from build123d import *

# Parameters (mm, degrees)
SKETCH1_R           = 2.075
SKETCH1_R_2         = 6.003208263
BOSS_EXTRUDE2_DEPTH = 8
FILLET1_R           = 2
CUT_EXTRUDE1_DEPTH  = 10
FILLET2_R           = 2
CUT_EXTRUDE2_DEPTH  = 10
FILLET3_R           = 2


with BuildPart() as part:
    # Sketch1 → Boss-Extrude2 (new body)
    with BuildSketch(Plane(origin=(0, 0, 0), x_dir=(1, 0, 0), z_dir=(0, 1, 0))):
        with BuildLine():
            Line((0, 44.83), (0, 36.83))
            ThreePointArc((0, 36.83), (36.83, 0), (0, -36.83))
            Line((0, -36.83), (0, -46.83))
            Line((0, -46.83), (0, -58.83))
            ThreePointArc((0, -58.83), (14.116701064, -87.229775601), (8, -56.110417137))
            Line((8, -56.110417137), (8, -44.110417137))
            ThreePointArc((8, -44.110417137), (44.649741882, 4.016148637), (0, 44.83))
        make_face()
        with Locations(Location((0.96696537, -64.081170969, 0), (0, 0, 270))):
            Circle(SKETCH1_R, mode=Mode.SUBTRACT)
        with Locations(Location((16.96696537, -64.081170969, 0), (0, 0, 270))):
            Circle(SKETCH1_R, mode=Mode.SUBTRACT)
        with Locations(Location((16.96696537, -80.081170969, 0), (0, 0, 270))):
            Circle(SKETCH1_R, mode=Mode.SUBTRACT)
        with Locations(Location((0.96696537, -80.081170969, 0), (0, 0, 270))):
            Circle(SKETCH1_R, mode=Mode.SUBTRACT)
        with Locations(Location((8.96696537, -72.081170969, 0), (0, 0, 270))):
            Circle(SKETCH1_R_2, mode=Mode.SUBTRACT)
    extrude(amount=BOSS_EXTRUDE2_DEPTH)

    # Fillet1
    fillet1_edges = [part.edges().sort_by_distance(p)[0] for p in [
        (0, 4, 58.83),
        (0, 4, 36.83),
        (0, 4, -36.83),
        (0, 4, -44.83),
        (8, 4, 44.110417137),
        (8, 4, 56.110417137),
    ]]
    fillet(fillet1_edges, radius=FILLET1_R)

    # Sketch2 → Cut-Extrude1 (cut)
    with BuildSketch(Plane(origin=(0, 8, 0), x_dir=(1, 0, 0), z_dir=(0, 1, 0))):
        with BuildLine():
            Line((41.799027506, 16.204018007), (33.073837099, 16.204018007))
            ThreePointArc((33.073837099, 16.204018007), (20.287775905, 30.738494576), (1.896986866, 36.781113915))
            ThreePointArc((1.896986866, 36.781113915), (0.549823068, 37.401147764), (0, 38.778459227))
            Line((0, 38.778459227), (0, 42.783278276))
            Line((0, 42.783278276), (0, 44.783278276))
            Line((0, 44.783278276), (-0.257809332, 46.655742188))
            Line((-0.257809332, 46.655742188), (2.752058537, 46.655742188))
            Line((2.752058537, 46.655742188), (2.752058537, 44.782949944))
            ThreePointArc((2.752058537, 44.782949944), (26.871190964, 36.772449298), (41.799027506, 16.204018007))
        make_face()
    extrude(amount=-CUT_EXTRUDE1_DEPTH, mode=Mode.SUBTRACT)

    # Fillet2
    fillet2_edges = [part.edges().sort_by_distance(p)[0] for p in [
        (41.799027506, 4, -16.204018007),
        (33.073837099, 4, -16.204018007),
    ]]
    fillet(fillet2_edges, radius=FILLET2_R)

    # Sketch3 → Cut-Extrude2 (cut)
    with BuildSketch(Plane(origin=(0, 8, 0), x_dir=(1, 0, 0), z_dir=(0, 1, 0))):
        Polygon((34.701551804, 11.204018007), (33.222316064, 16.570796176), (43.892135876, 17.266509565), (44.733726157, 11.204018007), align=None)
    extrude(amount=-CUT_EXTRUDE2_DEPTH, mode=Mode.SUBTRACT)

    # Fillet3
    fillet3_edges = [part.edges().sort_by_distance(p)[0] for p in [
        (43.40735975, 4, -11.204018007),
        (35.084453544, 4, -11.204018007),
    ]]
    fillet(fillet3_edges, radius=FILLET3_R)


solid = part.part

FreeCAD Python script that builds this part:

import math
import FreeCAD as App
import Part
import Sketcher

V = App.Vector


def edges_at(feature, points):
    """Names of the edges that pass closest to the given points."""
    edges = feature.Shape.Edges
    near = lambda p: min(range(len(edges)), key=lambda i: edges[i].distToShape(Part.Vertex(*p))[0])
    return sorted({f"Edge{near(p) + 1}" for p in points})


def add_polygon(sketch, points):
    """Adds a closed chain of lines whose ends are joined by coincident constraints."""
    first, n = sketch.GeometryCount, len(points)
    for a, b in zip(points, points[1:] + points[:1]):
        sketch.addGeometry(Part.LineSegment(App.Vector(*a, 0), App.Vector(*b, 0)), False)
    for i in range(n):
        sketch.addConstraint(Sketcher.Constraint("Coincident", first + i, 2, first + (i + 1) % n, 1))

doc = App.newDocument("Part")
body = doc.addObject("PartDesign::Body", "Body")

sketch1 = doc.addObject("Sketcher::SketchObject", "Sketch")
body.addObject(sketch1)
sketch1.AttachmentSupport = (doc.XZ_Plane, [""])
sketch1.MapMode = "FlatFace"
sketch1.addGeometry(Part.LineSegment(V(0, -44.8, 0), V(0, -36.8, 0)), False)
sketch1.addGeometry(Part.ArcOfCircle(Part.Circle(V(0, 0, 0), V(0, 0, 1), 36.8), math.radians(-90), math.radians(90)), False)
sketch1.addGeometry(Part.LineSegment(V(0, 36.8, 0), V(0, 58.8, 0)), False)
sketch1.addGeometry(Part.ArcOfCircle(Part.Circle(V(9, 72.1, 0), V(0, 0, 1), 16), math.radians(-93), math.radians(236)), False)
sketch1.addGeometry(Part.LineSegment(V(8, 56.1, 0), V(8, 44.1, 0)), False)
sketch1.addGeometry(Part.ArcOfCircle(Part.Circle(V(0, 0, 0), V(0, 0, 1), 44.8), math.radians(-90), math.radians(80)), False)
sketch1.addGeometry(Part.Circle(V(1, 80.1, 0), V(0, 0, 1), 2.1), False)
sketch1.addGeometry(Part.Circle(V(9, 72.1, 0), V(0, 0, 1), 6), False)
sketch1.addGeometry(Part.Circle(V(17, 80.1, 0), V(0, 0, 1), 2.1), False)
sketch1.addGeometry(Part.Circle(V(1, 64.1, 0), V(0, 0, 1), 2.1), False)
sketch1.addGeometry(Part.Circle(V(17, 64.1, 0), V(0, 0, 1), 2.1), False)
sketch1.addConstraint(Sketcher.Constraint("Coincident", 0, 2, 1, 1))
sketch1.addConstraint(Sketcher.Constraint("Coincident", 1, 2, 2, 1))
sketch1.addConstraint(Sketcher.Constraint("Coincident", 2, 2, 3, 2))
sketch1.addConstraint(Sketcher.Constraint("Coincident", 3, 1, 4, 1))
sketch1.addConstraint(Sketcher.Constraint("Coincident", 4, 2, 5, 2))
sketch1.addConstraint(Sketcher.Constraint("Coincident", 5, 1, 0, 1))
sketch1.addConstraint(Sketcher.Constraint("Vertical", 0))
sketch1.addConstraint(Sketcher.Constraint("Vertical", 2))
sketch1.addConstraint(Sketcher.Constraint("Vertical", 4))
sketch1.addConstraint(Sketcher.Constraint("Coincident", 1, 3, -1, 1))
sketch1.addConstraint(Sketcher.Constraint("Coincident", 5, 3, -1, 1))
sketch1.addConstraint(Sketcher.Constraint("Coincident", 7, 3, 3, 3))
sketch1.addConstraint(Sketcher.Constraint("Equal", 6, 8))
sketch1.addConstraint(Sketcher.Constraint("Equal", 8, 9))
sketch1.addConstraint(Sketcher.Constraint("Equal", 9, 10))
sketch1.addConstraint(Sketcher.Constraint("PointOnObject", 0, 2, -2))
sketch1.addConstraint(Sketcher.Constraint("PointOnObject", 1, 2, -2))
sketch1.addConstraint(Sketcher.Constraint("Horizontal", 6, 3, 8, 3))
sketch1.addConstraint(Sketcher.Constraint("Horizontal", 9, 3, 10, 3))
sketch1.addConstraint(Sketcher.Constraint("Vertical", 6, 3, 9, 3))
sketch1.addConstraint(Sketcher.Constraint("Vertical", 8, 3, 10, 3))
sketch1.addConstraint(Sketcher.Constraint("Radius", 3, 16.0))
sketch1.addConstraint(Sketcher.Constraint("Diameter", 6, 4.15))
sketch1.addConstraint(Sketcher.Constraint("DistanceY", 0, 1, 0, 2, 8.0))
sketch1.addConstraint(Sketcher.Constraint("DistanceY", 2, 1, 2, 2, 22.0))
sketch1.addConstraint(Sketcher.Constraint("DistanceY", 4, 2, 4, 1, 12.0))
sketch1.addConstraint(Sketcher.Constraint("Radius", 1, 36.83))
sketch1.addConstraint(Sketcher.Constraint("DistanceX", -1, 1, 3, 1, 8.0))
sketch1.addConstraint(Sketcher.Constraint("DistanceX", 6, 3, 3, 3, 8.0))
sketch1.addConstraint(Sketcher.Constraint("DistanceY", 3, 3, 6, 3, 8.0))
sketch1.addConstraint(Sketcher.Constraint("DistanceX", 3, 3, 8, 3, 8.0))
sketch1.addConstraint(Sketcher.Constraint("DistanceY", 9, 3, 3, 3, 8.0))
sketch1.addConstraint(Sketcher.Constraint("Diameter", 7, 12.006417))
pad1 = doc.addObject("PartDesign::Pad", "Pad")
body.addObject(pad1)
pad1.Profile = sketch1
pad1.Length = 8
pad1.Reversed = True
doc.recompute()

fillet = doc.addObject("PartDesign::Fillet", "Fillet")
body.addObject(fillet)
fillet.Base = (pad1, edges_at(pad1, [
    (0, 4, 58.83),
    (0, 4, 36.83),
    (0, 4, -36.83),
    (0, 4, -44.83),
    (8, 4, 44.11),
    (8, 4, 56.11),
]))
fillet.Radius = 2

sketch2 = doc.addObject("Sketcher::SketchObject", "Sketch001")
body.addObject(sketch2)
sketch2.AttachmentSupport = (doc.XZ_Plane, [""])
sketch2.MapMode = "FlatFace"
sketch2.AttachmentOffset = App.Placement(V(0, 0, -8), App.Rotation())
sketch2.addGeometry(Part.LineSegment(V(33.1, -16.2, 0), V(41.8, -16.2, 0)), False)
sketch2.addGeometry(Part.ArcOfCircle(Part.Circle(V(2.4, -3.3, 0), V(0, 0, 1), 41.5), math.radians(-89), math.radians(-18)), False)
sketch2.addGeometry(Part.LineSegment(V(2.8, -44.8, 0), V(2.8, -46.7, 0)), False)
sketch2.addGeometry(Part.LineSegment(V(2.8, -46.7, 0), V(-0.3, -46.7, 0)), False)
sketch2.addGeometry(Part.LineSegment(V(-0.3, -46.7, 0), V(0, -44.8, 0)), False)
sketch2.addGeometry(Part.LineSegment(V(0, -44.8, 0), V(0, -38.8, 0)), False)
sketch2.addGeometry(Part.ArcOfCircle(Part.Circle(V(2, -38.8, 0), V(0, 0, 1), 2), math.radians(93), math.radians(180)), False)
sketch2.addGeometry(Part.ArcOfCircle(Part.Circle(V(0, 0, 0), V(0, 0, 1), 36.8), math.radians(-87), math.radians(-26)), False)
sketch2.addConstraint(Sketcher.Constraint("Coincident", 0, 2, 1, 2))
sketch2.addConstraint(Sketcher.Constraint("Coincident", 1, 1, 2, 1))
sketch2.addConstraint(Sketcher.Constraint("Coincident", 2, 2, 3, 1))
sketch2.addConstraint(Sketcher.Constraint("Coincident", 3, 2, 4, 1))
sketch2.addConstraint(Sketcher.Constraint("Coincident", 4, 2, 5, 1))
sketch2.addConstraint(Sketcher.Constraint("Tangent", 5, 2, 6, 2))
sketch2.addConstraint(Sketcher.Constraint("Tangent", 6, 1, 7, 1))
sketch2.addConstraint(Sketcher.Constraint("Coincident", 7, 2, 0, 1))
sketch2.addConstraint(Sketcher.Constraint("Horizontal", 0))
sketch2.addConstraint(Sketcher.Constraint("Vertical", 2))
sketch2.addConstraint(Sketcher.Constraint("Horizontal", 3))
sketch2.addConstraint(Sketcher.Constraint("Vertical", 5))
sketch2.addConstraint(Sketcher.Constraint("Coincident", 7, 3, -1, 1))
sketch2.addConstraint(Sketcher.Constraint("PointOnObject", 4, 2, -2))
sketch2.addConstraint(Sketcher.Constraint("Radius", 6, 2.0))
sketch2.addConstraint(Sketcher.Constraint("Radius", 7, 36.83))
sketch2.addConstraint(Sketcher.Constraint("Radius", 1, 41.504503))
sketch2.addConstraint(Sketcher.Constraint("DistanceX", 0, 1, 0, 2, 8.72519))
sketch2.addConstraint(Sketcher.Constraint("DistanceY", 5, 1, 5, 2, 6.004819))
sketch2.addConstraint(Sketcher.Constraint("DistanceY", 0, 2, 1, 3, 12.923699))
sketch2.addConstraint(Sketcher.Constraint("Distance", 4, 1.890129))
sketch2.addConstraint(Sketcher.Constraint("DistanceX", 3, 2, 3, 1, 3.009868))
sketch2.addConstraint(Sketcher.Constraint("DistanceY", 2, 2, 2, 1, 1.872792))
sketch2.addConstraint(Sketcher.Constraint("DistanceX", -1, 1, 1, 3, 2.35791))
pocket1 = doc.addObject("PartDesign::Pocket", "Pocket")
body.addObject(pocket1)
pocket1.Profile = sketch2
pocket1.Length = 10
pocket1.Reversed = True
doc.recompute()

fillet2 = doc.addObject("PartDesign::Fillet", "Fillet001")
body.addObject(fillet2)
fillet2.Base = (pocket1, edges_at(pocket1, [(41.799, 4, -16.204), (33.074, 4, -16.204)]))
fillet2.Radius = 2

sketch3 = doc.addObject("Sketcher::SketchObject", "Sketch002")
body.addObject(sketch3)
sketch3.AttachmentSupport = (doc.XZ_Plane, [""])
sketch3.MapMode = "FlatFace"
sketch3.AttachmentOffset = App.Placement(V(0, 0, -8), App.Rotation())
add_polygon(sketch3, [(33, -17), (35, -11), (45, -11), (44, -17)])
sketch3.addConstraint(Sketcher.Constraint("Horizontal", 1))
sketch3.addConstraint(Sketcher.Constraint("DistanceX", 1, 1, 1, 2, 10.032174))
sketch3.addConstraint(Sketcher.Constraint("DistanceX", -1, 1, 0, 2, 34.701552))
sketch3.addConstraint(Sketcher.Constraint("DistanceY", 0, 2, -1, 1, 11.204018))
sketch3.addConstraint(Sketcher.Constraint("DistanceY", 2, 2, -1, 1, 17.26651))
sketch3.addConstraint(Sketcher.Constraint("DistanceX", 2, 2, 1, 2, 0.84159))
sketch3.addConstraint(Sketcher.Constraint("DistanceY", 3, 2, 0, 2, 5.366778))
sketch3.addConstraint(Sketcher.Constraint("DistanceX", 3, 2, 2, 2, 10.66982))
pocket2 = doc.addObject("PartDesign::Pocket", "Pocket001")
body.addObject(pocket2)
pocket2.Profile = sketch3
pocket2.Length = 10
pocket2.Reversed = True
doc.recompute()

fillet3 = doc.addObject("PartDesign::Fillet", "Fillet002")
body.addObject(fillet3)
fillet3.Base = (pocket2, edges_at(pocket2, [(43.407, 4, -11.204), (35.084, 4, -11.204)]))
fillet3.Radius = 2

doc.recompute()
